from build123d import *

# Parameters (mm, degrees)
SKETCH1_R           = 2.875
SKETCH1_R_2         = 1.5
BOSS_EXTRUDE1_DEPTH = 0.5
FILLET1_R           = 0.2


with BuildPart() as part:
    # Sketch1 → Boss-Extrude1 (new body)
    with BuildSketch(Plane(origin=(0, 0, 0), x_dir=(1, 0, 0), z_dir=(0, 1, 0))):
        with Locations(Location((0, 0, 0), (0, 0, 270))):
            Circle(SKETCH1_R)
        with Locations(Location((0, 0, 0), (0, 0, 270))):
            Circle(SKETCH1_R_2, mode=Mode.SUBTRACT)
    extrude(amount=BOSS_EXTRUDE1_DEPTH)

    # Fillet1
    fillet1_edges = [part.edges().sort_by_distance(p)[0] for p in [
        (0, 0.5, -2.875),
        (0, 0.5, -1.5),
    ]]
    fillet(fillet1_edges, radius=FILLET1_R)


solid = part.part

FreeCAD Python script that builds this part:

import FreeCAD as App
import Part
import Sketcher
Q = App.Units.Quantity


def edges_at(feature, points):
    """Names of the edges that pass closest to the given points."""
    edges = feature.Shape.Edges
    near = lambda p: min(range(len(edges)), key=lambda i: edges[i].distToShape(Part.Vertex(*p))[0])
    return sorted({f"Edge{near(p) + 1}" for p in points})

doc = App.newDocument("Part")
body = doc.addObject("PartDesign::Body", "Body")

sketch1 = doc.addObject("Sketcher::SketchObject", "Sketch")
body.addObject(sketch1)
sketch1.AttachmentSupport = (doc.XZ_Plane, [""])
sketch1.MapMode = "FlatFace"
sketch1.addGeometry([
    Part.Circle(App.Vector(0, 0, 0), App.Vector(0, 0, 1), 2.9),
    Part.Circle(App.Vector(0, 0, 0), App.Vector(0, 0, 1), 1.5),
], False)
sketch1.addConstraint([
    Sketcher.Constraint("Coincident", 0, 3, -1, 1),
    Sketcher.Constraint("Coincident", 1, 3, -1, 1),
    Sketcher.Constraint("Diameter", 1, Q("3 mm")),
    Sketcher.Constraint("Diameter", 0, Q("5.75 mm")),
])
pad1 = doc.addObject("PartDesign::Pad", "Pad")
body.addObject(pad1)
pad1.Profile = sketch1
pad1.Length = 0.5
pad1.Reversed = True
doc.recompute()

fillet = doc.addObject("PartDesign::Fillet", "Fillet")
body.addObject(fillet)
fillet.Base = (pad1, edges_at(pad1, [(0, 0.5, -2.875), (0, 0.5, -1.5)]))
fillet.Radius = 0.2

doc.recompute()
